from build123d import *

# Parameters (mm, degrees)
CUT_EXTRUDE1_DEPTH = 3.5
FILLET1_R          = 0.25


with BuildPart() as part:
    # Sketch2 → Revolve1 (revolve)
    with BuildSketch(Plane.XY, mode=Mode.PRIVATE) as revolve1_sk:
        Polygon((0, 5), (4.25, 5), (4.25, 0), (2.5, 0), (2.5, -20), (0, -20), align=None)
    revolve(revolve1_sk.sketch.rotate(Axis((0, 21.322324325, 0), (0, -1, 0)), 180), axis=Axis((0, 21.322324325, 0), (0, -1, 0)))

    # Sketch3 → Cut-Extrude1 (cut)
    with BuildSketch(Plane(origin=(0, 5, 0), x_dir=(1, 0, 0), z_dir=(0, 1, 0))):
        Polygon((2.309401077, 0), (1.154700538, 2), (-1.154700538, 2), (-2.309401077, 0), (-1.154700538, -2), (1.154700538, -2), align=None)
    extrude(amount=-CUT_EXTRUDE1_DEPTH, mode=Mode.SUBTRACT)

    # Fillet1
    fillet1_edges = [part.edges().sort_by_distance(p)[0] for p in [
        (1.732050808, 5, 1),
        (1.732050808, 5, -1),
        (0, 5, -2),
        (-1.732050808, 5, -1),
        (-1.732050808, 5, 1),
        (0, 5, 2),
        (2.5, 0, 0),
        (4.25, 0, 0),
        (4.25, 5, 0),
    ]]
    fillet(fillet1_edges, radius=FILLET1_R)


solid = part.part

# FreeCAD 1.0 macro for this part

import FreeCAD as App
import Part
import Sketcher
Q = App.Units.Quantity


def edges_at(feature, points):
    """Names of the edges that pass closest to the given points."""
    edges = feature.Shape.Edges
    near = lambda p: min(range(len(edges)), key=lambda i: edges[i].distToShape(Part.Vertex(*p))[0])
    return sorted({f"Edge{near(p) + 1}" for p in points})


def add_polygon(sketch, points):
    """Adds a closed chain of lines whose ends are joined by coincident constraints."""
    first, n = sketch.GeometryCount, len(points)
    for a, b in zip(points, points[1:] + points[:1]):
        sketch.addGeometry(Part.LineSegment(App.Vector(*a, 0), App.Vector(*b, 0)), False)
    for i in range(n):
        sketch.addConstraint(Sketcher.Constraint("Coincident", first + i, 2, first + (i + 1) % n, 1))

doc = App.newDocument("Part")
params = doc.addObject("Spreadsheet::Sheet", "Params")
for row, (alias, value) in enumerate([
    ("sketch1_height", "25 mm"),
    ("sketch1_height2", "20 mm"),
    ("sketch1_width", "2.5 mm"),
    ("sketch1_width2", "4.25 mm"),
    ("revolution_angle", "360 deg"),
    ("pocket1_length", "3.5 mm"),
    ("fillet_radius", "0.25 mm"),
], start=1):
    params.set(f"A{row}", alias)
    params.set(f"B{row}", "=" + value)
    params.setAlias(f"B{row}", alias)

body = doc.addObject("PartDesign::Body", "Body")

# Sketch on XY plane
sketch1 = body.newObject("Sketcher::SketchObject", "Sketch")
sketch1.AttachmentSupport = (doc.getObject("XY_Plane"), [""])
sketch1.MapMode = "FlatFace"
add_polygon(sketch1, [(4.2, 5), (0, 5), (0, -20), (2.5, -20), (2.5, 0), (4.2, 0)])  # lines 0-5
sketch1.addConstraint(Sketcher.Constraint("Horizontal", 0))
sketch1.addConstraint(Sketcher.Constraint("Vertical", 1))
sketch1.addConstraint(Sketcher.Constraint("Horizontal", 2))
sketch1.addConstraint(Sketcher.Constraint("Vertical", 3))
sketch1.addConstraint(Sketcher.Constraint("Horizontal", 4))
sketch1.addConstraint(Sketcher.Constraint("Vertical", 5))
sketch1.addConstraint(Sketcher.Constraint("PointOnObject", 0, 2, -2))
sketch1.addConstraint(Sketcher.Constraint("PointOnObject", 3, 2, -1))
sketch1.addConstraint(Sketcher.Constraint("DistanceY", 1, 2, 1, 1, 25.0))
sketch1.addConstraint(Sketcher.Constraint("DistanceY", 3, 1, 3, 2, 20.0))
sketch1.addConstraint(Sketcher.Constraint("DistanceX", 2, 1, 2, 2, 2.5))
sketch1.addConstraint(Sketcher.Constraint("DistanceX", 0, 2, 0, 1, 4.25))
sketch1.setExpression("Constraints[14]", "Params.sketch1_height")
sketch1.setExpression("Constraints[15]", "Params.sketch1_height2")
sketch1.setExpression("Constraints[16]", "Params.sketch1_width")
sketch1.setExpression("Constraints[17]", "Params.sketch1_width2")
revolution = body.newObject("PartDesign::Revolution", "Revolution")
revolution.Profile = sketch1
revolution.ReferenceAxis = (sketch1, ["V_Axis"])
revolution.setExpression("Angle", "Params.revolution_angle")

# Sketch on XZ plane
sketch2 = body.newObject("Sketcher::SketchObject", "Sketch001")
sketch2.AttachmentSupport = (doc.getObject("XZ_Plane"), [""])
sketch2.MapMode = "FlatFace"
sketch2.AttachmentOffset = App.Placement(App.Vector(0, 0, -5), App.Rotation())
add_polygon(sketch2, [(2.3, 0), (1.2, -2), (-1.2, -2), (-2.3, 0), (-1.2, 2), (1.2, 2)])  # lines 0-5
sketch2.addConstraint(Sketcher.Constraint("Horizontal", 1))
sketch2.addConstraint(Sketcher.Constraint("Horizontal", 4))
sketch2.addConstraint(Sketcher.Constraint("Symmetric", 0, 2, 3, 2, -1, 1))
sketch2.addConstraint(Sketcher.Constraint("Symmetric", 2, 2, 5, 2, -1, 1))
sketch2.addConstraint(Sketcher.Constraint("PointOnObject", 2, 2, -1))
sketch2.addConstraint(Sketcher.Constraint("Parallel", 2, 5))
sketch2.addConstraint(Sketcher.Constraint("Vertical", 1, 2, 3, 2))
sketch2.addConstraint(Sketcher.Constraint("Angle", 0, Q("-120 deg")))
sketch2.addConstraint(Sketcher.Constraint("DistanceY", 0, 2, -1, 1, 2.0))
sketch2.addConstraint(Sketcher.Constraint("DistanceX", 1, 2, 1, 1, 2.309401))
pocket1 = body.newObject("PartDesign::Pocket", "Pocket")
pocket1.Profile = sketch2
pocket1.setExpression("Length", "Params.pocket1_length")
pocket1.Reversed = True
doc.recompute()

fillet = body.newObject("PartDesign::Fillet", "Fillet")
fillet.Base = (pocket1, edges_at(pocket1, [
    (1.732, 5, 1),
    (1.732, 5, -1),
    (0, 5, -2),
    (-1.732, 5, -1),
    (-1.732, 5, 1),
    (0, 5, 2),
    (2.5, 0, 0),
    (4.25, 0, 0),
    (4.25, 5, 0),
]))
fillet.setExpression("Radius", "Params.fillet_radius")

doc.recompute()
